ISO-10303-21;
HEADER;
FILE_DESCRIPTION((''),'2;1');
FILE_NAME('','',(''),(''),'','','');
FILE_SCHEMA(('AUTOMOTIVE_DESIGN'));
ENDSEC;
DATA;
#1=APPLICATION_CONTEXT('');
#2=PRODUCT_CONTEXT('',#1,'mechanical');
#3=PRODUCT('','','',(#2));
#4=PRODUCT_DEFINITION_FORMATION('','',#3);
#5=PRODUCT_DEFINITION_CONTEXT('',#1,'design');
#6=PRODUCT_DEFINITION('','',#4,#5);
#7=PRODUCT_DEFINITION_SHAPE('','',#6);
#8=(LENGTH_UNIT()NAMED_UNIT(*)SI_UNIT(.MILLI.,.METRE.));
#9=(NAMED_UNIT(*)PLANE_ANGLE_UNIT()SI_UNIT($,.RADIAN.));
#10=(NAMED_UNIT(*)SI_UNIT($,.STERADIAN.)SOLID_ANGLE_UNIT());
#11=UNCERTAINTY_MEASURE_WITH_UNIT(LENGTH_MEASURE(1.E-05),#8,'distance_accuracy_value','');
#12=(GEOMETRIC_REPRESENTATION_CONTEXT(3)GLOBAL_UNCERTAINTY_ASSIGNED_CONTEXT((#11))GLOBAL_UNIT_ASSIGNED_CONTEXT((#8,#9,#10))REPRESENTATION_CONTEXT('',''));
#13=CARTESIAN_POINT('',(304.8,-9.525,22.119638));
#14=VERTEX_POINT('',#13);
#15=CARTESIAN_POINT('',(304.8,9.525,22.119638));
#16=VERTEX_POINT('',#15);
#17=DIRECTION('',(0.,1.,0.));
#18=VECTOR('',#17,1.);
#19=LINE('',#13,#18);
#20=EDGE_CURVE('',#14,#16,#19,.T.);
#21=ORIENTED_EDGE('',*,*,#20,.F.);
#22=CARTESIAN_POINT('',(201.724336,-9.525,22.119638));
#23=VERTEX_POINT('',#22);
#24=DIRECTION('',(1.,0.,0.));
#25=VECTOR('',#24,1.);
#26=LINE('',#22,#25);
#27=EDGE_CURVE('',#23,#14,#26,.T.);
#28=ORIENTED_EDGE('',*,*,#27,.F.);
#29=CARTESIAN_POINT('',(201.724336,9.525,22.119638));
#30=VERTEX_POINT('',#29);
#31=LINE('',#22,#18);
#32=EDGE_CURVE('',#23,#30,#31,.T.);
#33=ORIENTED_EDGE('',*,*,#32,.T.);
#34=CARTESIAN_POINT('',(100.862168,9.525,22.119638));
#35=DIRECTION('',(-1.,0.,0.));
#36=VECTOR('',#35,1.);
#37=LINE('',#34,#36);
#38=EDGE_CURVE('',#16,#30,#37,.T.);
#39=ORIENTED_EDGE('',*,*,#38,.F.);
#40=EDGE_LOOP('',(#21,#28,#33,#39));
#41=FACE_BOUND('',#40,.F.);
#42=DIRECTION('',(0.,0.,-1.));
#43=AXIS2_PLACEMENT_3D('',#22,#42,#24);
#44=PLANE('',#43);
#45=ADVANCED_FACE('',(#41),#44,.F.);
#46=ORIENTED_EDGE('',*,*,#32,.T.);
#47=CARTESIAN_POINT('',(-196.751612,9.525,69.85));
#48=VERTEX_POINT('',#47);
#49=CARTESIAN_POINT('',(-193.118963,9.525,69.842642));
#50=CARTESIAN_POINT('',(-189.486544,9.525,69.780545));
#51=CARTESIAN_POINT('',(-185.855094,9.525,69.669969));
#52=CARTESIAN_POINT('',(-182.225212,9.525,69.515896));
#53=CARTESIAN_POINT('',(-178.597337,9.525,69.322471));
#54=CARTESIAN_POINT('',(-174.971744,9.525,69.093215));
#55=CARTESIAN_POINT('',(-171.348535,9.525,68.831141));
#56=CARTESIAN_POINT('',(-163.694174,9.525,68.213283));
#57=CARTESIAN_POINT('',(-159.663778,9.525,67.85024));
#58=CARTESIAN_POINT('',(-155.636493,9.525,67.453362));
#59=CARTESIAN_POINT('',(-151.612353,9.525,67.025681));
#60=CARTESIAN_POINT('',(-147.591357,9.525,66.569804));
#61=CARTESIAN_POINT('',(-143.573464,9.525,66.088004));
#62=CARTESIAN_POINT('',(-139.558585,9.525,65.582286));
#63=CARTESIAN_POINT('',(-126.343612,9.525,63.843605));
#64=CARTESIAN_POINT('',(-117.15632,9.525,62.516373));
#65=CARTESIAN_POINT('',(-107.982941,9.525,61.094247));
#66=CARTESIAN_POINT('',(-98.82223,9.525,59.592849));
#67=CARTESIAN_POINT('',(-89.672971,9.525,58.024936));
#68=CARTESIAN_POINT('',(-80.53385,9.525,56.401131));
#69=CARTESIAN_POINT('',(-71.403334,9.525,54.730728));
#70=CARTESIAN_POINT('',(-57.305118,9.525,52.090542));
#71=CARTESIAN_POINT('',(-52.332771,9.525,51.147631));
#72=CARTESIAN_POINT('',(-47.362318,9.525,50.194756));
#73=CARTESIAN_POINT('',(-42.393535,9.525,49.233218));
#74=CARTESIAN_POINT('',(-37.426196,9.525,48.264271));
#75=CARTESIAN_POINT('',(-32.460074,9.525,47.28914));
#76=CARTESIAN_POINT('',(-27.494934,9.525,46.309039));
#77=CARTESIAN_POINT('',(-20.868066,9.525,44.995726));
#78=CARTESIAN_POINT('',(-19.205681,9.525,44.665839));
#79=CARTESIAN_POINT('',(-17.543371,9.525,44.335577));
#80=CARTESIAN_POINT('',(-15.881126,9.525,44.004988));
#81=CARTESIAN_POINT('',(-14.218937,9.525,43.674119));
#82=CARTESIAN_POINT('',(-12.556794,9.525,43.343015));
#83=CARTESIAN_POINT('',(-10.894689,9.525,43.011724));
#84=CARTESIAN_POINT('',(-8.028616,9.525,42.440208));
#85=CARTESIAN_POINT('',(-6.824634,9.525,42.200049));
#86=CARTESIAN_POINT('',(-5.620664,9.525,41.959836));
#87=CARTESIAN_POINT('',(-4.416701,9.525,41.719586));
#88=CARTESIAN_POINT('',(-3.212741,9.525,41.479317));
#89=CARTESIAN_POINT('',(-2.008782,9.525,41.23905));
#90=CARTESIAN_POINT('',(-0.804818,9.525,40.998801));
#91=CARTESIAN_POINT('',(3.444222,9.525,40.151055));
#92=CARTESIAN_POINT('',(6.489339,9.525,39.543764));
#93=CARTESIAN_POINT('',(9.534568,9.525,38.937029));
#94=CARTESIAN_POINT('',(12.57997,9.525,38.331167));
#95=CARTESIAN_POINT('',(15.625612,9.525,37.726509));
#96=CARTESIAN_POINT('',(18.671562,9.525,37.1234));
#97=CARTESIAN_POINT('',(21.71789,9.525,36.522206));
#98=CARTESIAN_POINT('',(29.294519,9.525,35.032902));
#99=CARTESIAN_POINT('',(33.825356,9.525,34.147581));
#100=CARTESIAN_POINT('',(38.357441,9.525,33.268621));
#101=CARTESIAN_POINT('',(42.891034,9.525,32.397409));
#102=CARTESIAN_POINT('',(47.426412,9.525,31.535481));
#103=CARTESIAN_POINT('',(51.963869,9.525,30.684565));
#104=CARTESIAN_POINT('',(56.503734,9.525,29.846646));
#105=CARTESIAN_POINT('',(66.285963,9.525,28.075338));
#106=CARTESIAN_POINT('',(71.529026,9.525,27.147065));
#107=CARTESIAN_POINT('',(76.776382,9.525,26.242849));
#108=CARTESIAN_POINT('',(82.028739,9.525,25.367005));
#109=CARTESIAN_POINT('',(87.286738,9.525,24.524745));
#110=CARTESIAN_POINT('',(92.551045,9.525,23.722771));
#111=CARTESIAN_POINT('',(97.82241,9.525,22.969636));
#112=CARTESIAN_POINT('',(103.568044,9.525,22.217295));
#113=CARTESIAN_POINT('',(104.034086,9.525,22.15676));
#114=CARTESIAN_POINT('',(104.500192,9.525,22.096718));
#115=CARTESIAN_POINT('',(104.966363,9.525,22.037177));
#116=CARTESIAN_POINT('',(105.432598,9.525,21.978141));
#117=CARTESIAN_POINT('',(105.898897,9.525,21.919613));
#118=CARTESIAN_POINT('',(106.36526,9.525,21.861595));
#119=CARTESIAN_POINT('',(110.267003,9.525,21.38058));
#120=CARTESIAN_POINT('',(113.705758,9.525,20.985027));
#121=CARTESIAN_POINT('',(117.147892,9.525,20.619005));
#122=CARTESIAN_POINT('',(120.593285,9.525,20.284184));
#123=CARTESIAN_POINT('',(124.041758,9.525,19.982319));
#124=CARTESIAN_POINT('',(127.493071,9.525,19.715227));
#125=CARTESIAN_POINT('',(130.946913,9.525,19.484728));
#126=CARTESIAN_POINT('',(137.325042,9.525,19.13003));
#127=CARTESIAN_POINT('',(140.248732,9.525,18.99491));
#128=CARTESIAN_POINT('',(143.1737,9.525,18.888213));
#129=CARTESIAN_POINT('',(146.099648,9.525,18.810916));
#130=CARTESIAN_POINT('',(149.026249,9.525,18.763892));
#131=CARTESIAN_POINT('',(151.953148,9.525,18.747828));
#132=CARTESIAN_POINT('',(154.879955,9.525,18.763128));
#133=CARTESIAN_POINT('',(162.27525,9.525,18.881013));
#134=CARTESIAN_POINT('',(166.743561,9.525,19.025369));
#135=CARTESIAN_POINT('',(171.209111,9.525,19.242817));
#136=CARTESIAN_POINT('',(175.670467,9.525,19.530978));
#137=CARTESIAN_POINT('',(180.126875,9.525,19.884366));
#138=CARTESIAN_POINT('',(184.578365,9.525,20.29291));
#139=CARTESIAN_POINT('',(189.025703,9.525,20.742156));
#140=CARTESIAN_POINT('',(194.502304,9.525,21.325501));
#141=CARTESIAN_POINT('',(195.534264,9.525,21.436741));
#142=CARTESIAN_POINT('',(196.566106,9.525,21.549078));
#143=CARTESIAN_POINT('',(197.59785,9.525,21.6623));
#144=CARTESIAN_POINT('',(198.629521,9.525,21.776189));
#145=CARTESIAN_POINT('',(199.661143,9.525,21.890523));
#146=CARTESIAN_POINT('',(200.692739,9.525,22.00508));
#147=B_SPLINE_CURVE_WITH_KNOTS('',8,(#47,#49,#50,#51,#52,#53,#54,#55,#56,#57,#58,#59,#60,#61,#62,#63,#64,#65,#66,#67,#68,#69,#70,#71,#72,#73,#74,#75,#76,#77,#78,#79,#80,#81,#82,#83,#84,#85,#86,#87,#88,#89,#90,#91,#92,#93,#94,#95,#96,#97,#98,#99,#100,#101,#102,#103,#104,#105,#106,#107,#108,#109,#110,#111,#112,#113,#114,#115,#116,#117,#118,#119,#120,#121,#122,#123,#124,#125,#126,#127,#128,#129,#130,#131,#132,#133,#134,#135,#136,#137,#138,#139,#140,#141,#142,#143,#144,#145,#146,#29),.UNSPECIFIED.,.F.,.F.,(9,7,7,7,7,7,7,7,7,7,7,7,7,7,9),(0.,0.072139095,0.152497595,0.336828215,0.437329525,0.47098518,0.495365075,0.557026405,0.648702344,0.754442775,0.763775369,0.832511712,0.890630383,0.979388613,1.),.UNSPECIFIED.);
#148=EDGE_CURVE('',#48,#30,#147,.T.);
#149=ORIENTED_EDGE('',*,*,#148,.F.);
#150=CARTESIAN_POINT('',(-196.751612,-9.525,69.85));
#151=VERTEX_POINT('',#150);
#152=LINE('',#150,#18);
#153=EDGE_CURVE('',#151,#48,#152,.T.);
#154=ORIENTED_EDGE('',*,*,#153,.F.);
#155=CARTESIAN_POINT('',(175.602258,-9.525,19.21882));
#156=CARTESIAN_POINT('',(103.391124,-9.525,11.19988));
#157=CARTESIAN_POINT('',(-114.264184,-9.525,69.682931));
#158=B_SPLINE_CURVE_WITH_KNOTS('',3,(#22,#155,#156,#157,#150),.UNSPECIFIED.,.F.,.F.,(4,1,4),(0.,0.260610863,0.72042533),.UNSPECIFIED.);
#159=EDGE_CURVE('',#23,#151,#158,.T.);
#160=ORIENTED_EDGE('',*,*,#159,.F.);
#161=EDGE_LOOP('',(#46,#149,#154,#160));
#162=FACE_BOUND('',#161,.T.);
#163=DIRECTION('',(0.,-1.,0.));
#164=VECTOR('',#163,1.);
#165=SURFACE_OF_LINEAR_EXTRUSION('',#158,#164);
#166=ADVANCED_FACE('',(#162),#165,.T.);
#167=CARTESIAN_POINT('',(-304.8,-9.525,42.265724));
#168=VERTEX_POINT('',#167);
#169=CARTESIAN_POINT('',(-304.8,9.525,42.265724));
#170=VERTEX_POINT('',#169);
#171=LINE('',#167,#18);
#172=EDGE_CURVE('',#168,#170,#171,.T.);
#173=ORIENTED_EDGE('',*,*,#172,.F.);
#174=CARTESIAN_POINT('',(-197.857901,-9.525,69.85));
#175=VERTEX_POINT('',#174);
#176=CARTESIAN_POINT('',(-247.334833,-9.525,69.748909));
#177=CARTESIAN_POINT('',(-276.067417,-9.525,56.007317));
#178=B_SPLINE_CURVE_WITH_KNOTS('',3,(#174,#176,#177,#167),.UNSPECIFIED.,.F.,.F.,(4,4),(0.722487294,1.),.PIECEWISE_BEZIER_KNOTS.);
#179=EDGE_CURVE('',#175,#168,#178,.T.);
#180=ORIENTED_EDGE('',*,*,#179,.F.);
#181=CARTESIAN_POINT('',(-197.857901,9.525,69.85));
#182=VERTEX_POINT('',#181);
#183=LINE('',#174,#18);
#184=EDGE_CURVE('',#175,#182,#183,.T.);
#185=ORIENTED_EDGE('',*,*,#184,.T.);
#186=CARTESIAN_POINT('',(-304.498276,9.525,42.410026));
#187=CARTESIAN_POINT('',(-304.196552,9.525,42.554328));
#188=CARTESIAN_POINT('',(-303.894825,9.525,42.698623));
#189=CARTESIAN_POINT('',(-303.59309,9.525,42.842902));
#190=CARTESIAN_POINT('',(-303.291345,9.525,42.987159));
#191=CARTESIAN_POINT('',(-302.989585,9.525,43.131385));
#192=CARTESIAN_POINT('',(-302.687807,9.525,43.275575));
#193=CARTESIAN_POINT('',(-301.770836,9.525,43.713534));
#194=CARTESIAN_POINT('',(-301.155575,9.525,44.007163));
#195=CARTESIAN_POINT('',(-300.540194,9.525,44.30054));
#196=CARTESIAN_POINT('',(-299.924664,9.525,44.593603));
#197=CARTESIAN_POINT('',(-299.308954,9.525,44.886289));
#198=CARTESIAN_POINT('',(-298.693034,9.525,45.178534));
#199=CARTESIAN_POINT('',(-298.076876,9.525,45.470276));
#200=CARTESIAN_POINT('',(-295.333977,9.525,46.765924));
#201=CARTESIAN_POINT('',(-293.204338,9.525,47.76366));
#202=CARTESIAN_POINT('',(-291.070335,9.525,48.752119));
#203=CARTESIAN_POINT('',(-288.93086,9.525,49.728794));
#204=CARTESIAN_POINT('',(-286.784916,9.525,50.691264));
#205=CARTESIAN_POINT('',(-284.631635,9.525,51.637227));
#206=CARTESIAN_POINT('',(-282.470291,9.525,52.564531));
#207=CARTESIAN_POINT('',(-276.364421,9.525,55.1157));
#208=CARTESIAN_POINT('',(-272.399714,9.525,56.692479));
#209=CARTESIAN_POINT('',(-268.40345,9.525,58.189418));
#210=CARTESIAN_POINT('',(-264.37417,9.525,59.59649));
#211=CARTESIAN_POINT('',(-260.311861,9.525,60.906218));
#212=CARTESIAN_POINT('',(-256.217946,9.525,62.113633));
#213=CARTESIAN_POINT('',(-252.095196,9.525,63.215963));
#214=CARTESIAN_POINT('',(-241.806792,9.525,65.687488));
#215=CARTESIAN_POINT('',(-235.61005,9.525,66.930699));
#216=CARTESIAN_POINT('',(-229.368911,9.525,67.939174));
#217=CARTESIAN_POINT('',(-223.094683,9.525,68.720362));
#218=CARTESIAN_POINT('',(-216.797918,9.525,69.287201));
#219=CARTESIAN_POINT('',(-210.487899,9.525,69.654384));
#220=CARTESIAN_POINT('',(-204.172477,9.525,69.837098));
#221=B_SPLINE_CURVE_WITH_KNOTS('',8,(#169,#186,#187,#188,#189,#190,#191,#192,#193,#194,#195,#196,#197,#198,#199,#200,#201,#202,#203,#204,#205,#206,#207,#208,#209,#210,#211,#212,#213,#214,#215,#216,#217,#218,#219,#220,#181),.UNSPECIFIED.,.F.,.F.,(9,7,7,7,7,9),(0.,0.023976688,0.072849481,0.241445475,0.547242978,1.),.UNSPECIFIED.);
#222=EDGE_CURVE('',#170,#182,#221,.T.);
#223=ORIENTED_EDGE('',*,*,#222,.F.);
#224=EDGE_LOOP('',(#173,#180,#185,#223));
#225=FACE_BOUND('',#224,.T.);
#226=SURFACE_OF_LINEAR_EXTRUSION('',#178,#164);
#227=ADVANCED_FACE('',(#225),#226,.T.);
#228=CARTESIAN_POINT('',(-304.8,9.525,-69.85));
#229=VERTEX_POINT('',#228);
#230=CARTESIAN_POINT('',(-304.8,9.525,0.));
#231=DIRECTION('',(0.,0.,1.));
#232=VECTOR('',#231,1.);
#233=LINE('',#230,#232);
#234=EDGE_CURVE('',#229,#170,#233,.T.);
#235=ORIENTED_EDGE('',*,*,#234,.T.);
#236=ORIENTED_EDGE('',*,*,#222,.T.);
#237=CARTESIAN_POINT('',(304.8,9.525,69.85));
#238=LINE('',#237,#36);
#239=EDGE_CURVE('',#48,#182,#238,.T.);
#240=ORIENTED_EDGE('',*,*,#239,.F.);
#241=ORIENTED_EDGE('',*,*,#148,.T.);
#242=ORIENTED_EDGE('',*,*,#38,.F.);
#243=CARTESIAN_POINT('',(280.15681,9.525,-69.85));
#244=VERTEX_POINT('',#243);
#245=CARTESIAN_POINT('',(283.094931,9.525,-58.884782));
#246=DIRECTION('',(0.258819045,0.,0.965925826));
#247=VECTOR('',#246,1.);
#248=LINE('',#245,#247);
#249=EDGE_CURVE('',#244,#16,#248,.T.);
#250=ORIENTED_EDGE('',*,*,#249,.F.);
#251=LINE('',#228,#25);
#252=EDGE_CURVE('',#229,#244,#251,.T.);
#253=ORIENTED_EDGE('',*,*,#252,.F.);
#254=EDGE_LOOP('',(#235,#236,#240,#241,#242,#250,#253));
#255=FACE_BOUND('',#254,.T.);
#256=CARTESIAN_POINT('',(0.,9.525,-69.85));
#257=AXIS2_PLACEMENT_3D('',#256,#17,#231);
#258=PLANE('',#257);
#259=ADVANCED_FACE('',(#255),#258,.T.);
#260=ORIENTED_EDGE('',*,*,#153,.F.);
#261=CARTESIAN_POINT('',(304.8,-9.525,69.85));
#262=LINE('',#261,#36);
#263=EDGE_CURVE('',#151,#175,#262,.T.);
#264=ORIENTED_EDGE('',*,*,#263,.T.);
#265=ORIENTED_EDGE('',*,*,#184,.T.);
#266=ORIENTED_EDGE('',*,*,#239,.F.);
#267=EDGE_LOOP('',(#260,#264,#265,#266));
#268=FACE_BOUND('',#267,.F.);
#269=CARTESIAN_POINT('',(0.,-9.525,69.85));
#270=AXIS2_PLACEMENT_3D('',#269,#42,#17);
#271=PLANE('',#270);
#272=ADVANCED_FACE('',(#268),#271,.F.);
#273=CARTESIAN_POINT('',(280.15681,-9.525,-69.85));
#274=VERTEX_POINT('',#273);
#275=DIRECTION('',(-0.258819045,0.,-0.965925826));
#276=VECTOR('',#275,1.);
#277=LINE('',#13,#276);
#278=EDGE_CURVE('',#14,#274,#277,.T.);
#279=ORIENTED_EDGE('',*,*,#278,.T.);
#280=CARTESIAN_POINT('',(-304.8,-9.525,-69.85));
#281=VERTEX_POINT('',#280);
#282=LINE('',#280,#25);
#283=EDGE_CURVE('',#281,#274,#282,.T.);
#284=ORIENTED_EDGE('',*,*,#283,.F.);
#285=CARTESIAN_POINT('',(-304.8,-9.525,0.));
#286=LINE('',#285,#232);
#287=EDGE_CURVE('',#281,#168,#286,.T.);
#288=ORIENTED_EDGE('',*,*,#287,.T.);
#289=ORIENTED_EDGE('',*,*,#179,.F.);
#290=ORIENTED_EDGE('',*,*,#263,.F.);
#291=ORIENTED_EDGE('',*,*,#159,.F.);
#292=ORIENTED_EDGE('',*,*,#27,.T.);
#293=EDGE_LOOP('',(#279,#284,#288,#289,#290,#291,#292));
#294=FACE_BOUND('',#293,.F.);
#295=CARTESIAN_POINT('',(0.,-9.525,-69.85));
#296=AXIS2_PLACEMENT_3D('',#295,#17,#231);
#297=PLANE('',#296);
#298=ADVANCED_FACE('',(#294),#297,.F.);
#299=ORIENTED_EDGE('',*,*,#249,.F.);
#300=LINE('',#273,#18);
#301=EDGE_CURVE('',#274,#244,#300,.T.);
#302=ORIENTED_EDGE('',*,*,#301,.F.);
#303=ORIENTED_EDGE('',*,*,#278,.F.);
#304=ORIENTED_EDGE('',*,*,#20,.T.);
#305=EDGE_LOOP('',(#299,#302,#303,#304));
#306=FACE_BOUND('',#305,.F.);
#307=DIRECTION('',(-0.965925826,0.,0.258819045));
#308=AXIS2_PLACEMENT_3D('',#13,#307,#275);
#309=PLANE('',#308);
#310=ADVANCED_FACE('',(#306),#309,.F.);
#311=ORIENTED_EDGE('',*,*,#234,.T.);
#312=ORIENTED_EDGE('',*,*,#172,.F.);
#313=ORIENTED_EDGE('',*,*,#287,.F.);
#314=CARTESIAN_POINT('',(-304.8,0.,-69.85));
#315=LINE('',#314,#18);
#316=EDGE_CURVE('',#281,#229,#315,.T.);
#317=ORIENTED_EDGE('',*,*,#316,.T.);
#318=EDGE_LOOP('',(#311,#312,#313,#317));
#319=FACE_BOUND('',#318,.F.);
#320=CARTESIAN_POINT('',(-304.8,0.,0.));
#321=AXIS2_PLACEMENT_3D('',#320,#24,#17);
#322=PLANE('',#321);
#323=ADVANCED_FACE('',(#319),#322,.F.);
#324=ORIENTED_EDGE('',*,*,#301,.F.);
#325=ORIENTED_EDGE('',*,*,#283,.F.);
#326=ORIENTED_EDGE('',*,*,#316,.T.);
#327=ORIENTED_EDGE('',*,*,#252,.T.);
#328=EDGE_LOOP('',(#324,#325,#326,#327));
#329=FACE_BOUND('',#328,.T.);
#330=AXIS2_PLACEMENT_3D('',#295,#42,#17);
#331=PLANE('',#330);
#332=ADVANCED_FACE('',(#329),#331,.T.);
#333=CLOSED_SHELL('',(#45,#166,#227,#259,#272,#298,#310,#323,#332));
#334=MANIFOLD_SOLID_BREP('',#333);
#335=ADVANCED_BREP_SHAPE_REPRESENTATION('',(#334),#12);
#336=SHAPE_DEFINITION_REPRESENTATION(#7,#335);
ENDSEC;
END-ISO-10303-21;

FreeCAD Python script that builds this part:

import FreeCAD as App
import Part
import Sketcher
Q = App.Units.Quantity

doc = App.newDocument("Part")
body = doc.addObject("PartDesign::Body", "Body")

sketch1 = body.newObject("Sketcher::SketchObject", "Sketch")
sketch1.AttachmentSupport = (doc.getObject("YZ_Plane"), [""])
sketch1.MapMode = "FlatFace"
sketch1.addGeometry([
    Part.LineSegment(App.Vector(-10, 70, 0), App.Vector(-10, -70, 0)),
    Part.LineSegment(App.Vector(-10, -70, 0), App.Vector(10, -70, 0)),
    Part.LineSegment(App.Vector(10, -70, 0), App.Vector(10, 70, 0)),
    Part.LineSegment(App.Vector(10, 70, 0), App.Vector(-10, 70, 0)),
], False)
sketch1.addConstraint([
    Sketcher.Constraint("Coincident", 0, 2, 1, 1),
    Sketcher.Constraint("Coincident", 1, 2, 2, 1),
    Sketcher.Constraint("Coincident", 2, 2, 3, 1),
    Sketcher.Constraint("Coincident", 3, 2, 0, 1),
    Sketcher.Constraint("Vertical", 0),
    Sketcher.Constraint("Horizontal", 1),
    Sketcher.Constraint("Vertical", 2),
    Sketcher.Constraint("Horizontal", 3),
    Sketcher.Constraint("Symmetric", 0, 2, 2, 2, -1, 1),
    Sketcher.Constraint("DistanceY", 0, 2, 0, 1, Q("5.5 in")),
    Sketcher.Constraint("DistanceX", 1, 1, 1, 2, Q("0.75 in")),
])
pad1 = body.newObject("PartDesign::Pad", "Pad")
pad1.Profile = sketch1
pad1.Length = Q("24 in")
pad1.Midplane = True

sketch2 = body.newObject("Sketcher::SketchObject", "Sketch001")
sketch2.AttachmentSupport = (doc.getObject("XZ_Plane"), [""])
sketch2.MapMode = "FlatFace"
sketch2.AttachmentOffset = App.Placement(App.Vector(0, 0, 0.375 * 25.4), App.Rotation())
sketch2.addGeometry([
    Part.BSplineCurve([App.Vector(-197.857901, 69.85, 0), App.Vector(-247.334833, 69.748909, 0), App.Vector(-276.067417, 56.007317, 0), App.Vector(-304.8, 42.265724, 0)], [4, 4], [0.722487294, 1], False, 3, [1, 1, 1, 1], False),
    Part.LineSegment(App.Vector(-197.857901, 69.85, 0), App.Vector(-304.8, 69.85, 0)),
    Part.LineSegment(App.Vector(-304.8, 69.85, 0), App.Vector(-304.8, 42.265724, 0)),
    Part.LineSegment(App.Vector(201.724336, 22.119638, 0), App.Vector(304.8, 22.119638, 0)),
    Part.LineSegment(App.Vector(304.8, 22.119638, 0), App.Vector(304.8, 69.85, 0)),
    Part.LineSegment(App.Vector(304.8, 69.85, 0), App.Vector(-196.751612, 69.85, 0)),
    Part.BSplineCurve([App.Vector(201.724336, 22.119638, 0), App.Vector(175.602258, 19.21882, 0), App.Vector(103.391124, 11.19988, 0), App.Vector(-114.264184, 69.682931, 0), App.Vector(-196.751612, 69.85, 0)], [4, 1, 4], [0, 0.260610863, 0.72042533], False, 3, [1, 1, 1, 1, 1], False),
    Part.LineSegment(App.Vector(304.8, -69.85, 0), App.Vector(304.8, 22.119638, 0)),
    Part.LineSegment(App.Vector(304.8, 22.119638, 0), App.Vector(280.15681, -69.85, 0)),
    Part.LineSegment(App.Vector(280.15681, -69.85, 0), App.Vector(304.8, -69.85, 0)),
], False)
sketch2.addConstraint([
    Sketcher.Constraint("Block", 0),
    Sketcher.Constraint("Block", 6),
    Sketcher.Constraint("Coincident", 0, 1, 1, 1),
    Sketcher.Constraint("Coincident", 1, 2, 2, 1),
    Sketcher.Constraint("Coincident", 2, 2, 0, 2),
    Sketcher.Constraint("Coincident", 3, 2, 4, 1),
    Sketcher.Constraint("Coincident", 4, 2, 5, 1),
    Sketcher.Constraint("Coincident", 5, 2, 6, 2),
    Sketcher.Constraint("Coincident", 6, 1, 3, 1),
    Sketcher.Constraint("Coincident", 7, 2, 8, 1),
    Sketcher.Constraint("Coincident", 8, 2, 9, 1),
    Sketcher.Constraint("Coincident", 9, 2, 7, 1),
    Sketcher.Constraint("Horizontal", 1),
    Sketcher.Constraint("Vertical", 2),
    Sketcher.Constraint("Horizontal", 3),
    Sketcher.Constraint("Vertical", 4),
    Sketcher.Constraint("Horizontal", 5),
    Sketcher.Constraint("Vertical", 7),
    Sketcher.Constraint("Horizontal", 9),
    Sketcher.Constraint("Coincident", 7, 2, 3, 2),
    Sketcher.Constraint("Symmetric", 1, 2, 9, 2, -1, 1),
    Sketcher.Constraint("Angle", 8, Q("-105 deg")),
])
pocket1 = body.newObject("PartDesign::Pocket", "Pocket")
pocket1.Profile = sketch2
pocket1.Type = "ThroughAll"

doc.recompute()
